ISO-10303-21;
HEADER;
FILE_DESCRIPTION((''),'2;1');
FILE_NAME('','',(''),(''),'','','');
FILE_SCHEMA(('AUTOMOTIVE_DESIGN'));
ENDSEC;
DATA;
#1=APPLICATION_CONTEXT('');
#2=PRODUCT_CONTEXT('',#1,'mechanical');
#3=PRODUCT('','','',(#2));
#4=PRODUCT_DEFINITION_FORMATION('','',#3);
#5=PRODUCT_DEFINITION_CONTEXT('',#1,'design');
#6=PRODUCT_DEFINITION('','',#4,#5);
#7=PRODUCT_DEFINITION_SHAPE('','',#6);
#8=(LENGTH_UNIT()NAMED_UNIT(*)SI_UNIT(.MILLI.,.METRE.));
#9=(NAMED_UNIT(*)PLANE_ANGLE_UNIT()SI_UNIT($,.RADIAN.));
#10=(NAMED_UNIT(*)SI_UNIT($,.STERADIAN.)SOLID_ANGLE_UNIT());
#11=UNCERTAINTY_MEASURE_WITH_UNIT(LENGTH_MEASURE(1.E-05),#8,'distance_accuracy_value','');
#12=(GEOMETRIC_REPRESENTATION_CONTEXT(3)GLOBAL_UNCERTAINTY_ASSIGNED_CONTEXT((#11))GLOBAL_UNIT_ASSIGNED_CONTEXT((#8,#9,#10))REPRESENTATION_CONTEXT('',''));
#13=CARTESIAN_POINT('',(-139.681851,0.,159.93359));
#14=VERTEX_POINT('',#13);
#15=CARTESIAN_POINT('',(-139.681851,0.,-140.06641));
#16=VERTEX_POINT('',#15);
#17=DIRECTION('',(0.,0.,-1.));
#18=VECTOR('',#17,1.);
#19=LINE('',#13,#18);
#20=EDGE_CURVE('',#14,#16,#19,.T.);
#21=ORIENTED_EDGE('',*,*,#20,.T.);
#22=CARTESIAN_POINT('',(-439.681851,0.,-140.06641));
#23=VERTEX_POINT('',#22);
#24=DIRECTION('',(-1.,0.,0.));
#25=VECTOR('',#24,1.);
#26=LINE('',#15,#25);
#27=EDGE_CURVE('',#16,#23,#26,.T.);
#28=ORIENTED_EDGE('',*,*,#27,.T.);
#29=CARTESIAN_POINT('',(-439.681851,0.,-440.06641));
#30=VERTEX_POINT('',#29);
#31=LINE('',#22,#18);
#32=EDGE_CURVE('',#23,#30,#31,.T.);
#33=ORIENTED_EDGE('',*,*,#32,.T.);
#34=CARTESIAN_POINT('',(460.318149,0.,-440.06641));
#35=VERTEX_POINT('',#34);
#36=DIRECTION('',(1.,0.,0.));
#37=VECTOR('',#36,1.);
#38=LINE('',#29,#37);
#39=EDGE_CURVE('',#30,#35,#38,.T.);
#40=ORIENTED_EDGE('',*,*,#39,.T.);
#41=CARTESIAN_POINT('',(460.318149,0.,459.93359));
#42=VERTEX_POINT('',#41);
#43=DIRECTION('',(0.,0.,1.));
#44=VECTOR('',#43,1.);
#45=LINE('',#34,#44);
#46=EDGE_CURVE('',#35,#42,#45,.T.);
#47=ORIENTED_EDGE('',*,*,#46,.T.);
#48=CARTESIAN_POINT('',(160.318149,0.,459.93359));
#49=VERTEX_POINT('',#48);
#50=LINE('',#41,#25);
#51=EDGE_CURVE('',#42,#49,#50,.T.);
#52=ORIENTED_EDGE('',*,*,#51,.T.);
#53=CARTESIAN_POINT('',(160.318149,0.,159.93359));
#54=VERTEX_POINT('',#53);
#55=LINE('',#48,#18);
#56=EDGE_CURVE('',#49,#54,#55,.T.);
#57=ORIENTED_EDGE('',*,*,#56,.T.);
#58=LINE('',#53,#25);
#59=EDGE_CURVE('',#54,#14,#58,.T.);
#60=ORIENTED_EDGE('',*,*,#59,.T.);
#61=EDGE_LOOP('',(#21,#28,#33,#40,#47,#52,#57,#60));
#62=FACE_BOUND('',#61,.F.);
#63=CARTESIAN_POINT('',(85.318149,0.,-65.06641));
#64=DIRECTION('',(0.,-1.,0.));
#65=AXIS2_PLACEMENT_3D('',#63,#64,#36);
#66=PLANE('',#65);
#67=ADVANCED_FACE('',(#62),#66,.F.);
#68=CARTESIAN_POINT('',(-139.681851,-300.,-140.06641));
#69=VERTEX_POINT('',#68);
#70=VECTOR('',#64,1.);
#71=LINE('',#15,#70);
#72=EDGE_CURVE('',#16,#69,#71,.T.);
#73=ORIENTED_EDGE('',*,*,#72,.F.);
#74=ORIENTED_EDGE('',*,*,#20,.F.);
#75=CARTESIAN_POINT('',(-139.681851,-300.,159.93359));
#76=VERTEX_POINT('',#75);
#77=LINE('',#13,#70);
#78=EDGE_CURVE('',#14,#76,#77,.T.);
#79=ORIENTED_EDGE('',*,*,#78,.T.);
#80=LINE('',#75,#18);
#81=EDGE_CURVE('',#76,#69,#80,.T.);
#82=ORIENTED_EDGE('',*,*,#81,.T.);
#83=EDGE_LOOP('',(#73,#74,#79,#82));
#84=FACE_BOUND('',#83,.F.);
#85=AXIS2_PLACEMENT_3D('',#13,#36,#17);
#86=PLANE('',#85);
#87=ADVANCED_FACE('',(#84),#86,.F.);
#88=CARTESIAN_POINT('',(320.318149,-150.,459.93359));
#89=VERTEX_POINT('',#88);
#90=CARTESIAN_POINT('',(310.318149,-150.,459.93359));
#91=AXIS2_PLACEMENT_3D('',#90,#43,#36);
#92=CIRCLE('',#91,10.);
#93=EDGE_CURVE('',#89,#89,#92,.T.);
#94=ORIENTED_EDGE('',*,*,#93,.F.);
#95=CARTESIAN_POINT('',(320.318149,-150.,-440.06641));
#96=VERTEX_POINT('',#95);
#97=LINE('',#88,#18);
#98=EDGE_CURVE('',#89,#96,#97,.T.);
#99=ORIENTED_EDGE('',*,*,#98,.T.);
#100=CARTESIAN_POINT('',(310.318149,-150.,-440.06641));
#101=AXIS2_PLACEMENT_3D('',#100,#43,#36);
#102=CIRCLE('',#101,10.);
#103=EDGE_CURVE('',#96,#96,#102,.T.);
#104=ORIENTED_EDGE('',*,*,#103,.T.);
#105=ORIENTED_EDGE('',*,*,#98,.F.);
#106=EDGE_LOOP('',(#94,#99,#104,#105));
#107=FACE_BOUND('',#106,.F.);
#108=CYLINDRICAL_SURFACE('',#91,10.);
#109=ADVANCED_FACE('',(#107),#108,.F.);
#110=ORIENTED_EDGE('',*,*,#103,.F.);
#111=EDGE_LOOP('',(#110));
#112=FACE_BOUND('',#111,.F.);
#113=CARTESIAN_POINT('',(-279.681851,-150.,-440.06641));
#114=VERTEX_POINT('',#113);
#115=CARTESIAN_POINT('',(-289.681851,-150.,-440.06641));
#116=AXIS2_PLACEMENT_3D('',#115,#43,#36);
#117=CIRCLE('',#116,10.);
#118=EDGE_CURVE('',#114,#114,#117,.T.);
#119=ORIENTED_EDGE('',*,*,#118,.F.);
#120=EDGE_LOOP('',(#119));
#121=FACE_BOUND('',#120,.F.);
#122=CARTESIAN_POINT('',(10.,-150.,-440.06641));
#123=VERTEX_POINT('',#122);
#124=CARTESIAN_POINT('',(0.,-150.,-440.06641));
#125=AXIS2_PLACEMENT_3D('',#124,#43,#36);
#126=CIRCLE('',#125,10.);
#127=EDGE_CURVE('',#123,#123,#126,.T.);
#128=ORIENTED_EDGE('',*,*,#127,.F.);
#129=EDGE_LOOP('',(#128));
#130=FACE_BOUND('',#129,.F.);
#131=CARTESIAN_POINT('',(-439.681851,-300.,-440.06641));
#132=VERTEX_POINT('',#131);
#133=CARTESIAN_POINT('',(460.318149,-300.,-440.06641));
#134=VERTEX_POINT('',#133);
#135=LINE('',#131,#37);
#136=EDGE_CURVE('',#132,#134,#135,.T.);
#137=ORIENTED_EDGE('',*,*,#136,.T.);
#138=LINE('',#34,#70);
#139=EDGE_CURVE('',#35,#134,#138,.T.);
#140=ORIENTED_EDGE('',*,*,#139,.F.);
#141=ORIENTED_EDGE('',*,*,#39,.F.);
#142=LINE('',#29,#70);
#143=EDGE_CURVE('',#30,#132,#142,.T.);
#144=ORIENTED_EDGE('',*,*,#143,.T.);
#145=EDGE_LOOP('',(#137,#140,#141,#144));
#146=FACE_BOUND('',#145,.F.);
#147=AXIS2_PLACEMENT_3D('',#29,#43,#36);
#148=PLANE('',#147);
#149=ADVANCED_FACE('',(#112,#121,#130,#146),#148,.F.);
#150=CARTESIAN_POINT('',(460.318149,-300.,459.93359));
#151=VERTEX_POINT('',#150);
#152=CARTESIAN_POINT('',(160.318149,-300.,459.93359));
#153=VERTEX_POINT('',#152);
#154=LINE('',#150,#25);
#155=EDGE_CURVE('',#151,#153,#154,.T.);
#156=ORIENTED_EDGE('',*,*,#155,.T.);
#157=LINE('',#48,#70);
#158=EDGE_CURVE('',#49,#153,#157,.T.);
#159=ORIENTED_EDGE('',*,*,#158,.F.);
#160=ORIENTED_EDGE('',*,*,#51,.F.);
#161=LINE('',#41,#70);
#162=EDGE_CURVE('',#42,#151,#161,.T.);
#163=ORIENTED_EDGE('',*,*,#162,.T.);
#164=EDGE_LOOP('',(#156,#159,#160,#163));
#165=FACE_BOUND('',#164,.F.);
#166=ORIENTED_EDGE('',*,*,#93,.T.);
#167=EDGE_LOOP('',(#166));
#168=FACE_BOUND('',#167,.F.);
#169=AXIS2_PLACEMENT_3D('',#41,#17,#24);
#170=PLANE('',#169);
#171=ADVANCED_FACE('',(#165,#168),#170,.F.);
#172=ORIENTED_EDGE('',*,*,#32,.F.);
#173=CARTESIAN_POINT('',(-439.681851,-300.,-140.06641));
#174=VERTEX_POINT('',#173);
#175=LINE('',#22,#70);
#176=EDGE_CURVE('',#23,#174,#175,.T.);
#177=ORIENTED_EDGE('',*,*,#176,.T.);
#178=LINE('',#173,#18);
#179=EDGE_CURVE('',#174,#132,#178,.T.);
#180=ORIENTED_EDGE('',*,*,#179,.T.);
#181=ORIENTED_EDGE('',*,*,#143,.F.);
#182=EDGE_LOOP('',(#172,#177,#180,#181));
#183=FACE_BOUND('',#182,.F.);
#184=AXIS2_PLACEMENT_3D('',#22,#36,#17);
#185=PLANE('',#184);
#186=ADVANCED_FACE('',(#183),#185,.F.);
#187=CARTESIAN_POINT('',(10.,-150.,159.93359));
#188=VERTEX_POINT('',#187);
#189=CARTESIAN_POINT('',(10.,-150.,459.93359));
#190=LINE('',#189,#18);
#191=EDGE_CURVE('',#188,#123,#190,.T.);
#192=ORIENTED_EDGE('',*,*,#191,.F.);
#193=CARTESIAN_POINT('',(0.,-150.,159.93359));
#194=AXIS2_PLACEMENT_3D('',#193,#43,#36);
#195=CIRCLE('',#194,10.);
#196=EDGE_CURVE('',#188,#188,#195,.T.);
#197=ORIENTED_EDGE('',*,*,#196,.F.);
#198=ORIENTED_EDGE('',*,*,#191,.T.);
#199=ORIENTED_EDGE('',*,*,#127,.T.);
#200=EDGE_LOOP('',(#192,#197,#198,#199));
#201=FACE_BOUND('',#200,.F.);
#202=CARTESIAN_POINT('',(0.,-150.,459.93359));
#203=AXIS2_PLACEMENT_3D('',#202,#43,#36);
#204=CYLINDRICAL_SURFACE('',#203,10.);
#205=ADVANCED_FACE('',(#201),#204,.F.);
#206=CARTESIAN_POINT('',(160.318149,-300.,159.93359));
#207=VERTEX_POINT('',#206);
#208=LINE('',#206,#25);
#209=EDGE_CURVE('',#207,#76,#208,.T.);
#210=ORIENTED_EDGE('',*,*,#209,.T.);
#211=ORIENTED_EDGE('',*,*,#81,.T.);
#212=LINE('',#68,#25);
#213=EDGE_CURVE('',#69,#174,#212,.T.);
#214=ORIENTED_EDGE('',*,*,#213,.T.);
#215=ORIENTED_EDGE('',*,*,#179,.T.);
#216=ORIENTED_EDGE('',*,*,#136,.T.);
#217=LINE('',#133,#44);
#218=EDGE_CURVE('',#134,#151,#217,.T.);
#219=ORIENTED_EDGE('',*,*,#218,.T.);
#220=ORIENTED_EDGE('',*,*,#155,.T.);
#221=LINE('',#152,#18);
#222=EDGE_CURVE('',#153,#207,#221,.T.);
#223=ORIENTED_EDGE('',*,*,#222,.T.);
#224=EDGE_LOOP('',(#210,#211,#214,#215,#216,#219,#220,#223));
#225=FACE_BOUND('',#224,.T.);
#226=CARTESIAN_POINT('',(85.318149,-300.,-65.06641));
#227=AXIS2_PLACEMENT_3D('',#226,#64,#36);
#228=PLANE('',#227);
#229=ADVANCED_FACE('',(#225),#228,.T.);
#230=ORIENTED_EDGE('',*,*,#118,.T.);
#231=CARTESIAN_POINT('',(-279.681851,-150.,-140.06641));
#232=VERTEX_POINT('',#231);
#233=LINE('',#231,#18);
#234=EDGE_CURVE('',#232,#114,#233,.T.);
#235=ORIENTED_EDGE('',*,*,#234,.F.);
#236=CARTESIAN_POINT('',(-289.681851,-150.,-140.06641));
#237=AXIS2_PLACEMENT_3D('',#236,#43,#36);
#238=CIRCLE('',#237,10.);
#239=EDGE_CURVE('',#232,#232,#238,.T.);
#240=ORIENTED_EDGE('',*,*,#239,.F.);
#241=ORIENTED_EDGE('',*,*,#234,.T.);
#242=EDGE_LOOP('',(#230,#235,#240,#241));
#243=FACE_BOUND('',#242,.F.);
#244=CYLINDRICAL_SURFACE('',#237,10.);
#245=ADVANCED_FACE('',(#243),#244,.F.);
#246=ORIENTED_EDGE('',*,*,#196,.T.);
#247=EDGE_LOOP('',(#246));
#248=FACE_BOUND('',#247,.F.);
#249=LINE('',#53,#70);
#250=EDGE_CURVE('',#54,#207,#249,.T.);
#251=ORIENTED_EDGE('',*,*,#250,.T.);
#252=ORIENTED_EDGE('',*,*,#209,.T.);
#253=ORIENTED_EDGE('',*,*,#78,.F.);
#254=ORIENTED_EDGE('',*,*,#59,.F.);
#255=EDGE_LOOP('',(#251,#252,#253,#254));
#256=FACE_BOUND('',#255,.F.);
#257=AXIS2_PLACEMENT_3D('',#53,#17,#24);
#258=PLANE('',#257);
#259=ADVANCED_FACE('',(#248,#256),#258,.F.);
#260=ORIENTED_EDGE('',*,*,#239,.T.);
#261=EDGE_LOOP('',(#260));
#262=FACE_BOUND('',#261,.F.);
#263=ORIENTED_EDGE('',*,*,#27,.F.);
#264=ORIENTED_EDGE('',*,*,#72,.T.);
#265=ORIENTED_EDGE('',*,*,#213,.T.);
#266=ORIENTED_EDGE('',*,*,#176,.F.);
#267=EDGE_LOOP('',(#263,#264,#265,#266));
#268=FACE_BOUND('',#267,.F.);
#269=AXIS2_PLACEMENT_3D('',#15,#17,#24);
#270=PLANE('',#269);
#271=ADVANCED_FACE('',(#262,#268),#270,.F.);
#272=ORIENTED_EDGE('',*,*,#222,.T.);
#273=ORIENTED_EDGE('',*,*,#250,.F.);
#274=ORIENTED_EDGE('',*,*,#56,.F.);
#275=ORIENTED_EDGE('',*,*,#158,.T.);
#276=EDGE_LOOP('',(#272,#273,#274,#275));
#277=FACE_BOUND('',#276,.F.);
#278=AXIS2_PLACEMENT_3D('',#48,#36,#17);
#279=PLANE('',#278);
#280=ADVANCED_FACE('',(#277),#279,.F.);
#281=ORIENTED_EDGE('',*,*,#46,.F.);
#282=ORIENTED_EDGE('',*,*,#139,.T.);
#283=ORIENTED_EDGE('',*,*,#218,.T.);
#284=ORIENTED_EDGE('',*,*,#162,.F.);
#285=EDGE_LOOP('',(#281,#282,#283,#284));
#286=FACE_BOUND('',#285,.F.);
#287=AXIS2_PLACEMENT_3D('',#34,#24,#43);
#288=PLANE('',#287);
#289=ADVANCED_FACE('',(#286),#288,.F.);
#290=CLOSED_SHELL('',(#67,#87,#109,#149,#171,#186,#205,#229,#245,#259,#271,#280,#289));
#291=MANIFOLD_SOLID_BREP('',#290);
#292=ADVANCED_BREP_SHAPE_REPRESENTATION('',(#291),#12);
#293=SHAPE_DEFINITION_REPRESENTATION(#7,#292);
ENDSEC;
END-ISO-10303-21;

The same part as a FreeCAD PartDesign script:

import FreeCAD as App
import Part
import Sketcher


def add_polygon(sketch, points):
    """Adds a closed chain of lines whose ends are joined by coincident constraints."""
    first, n = sketch.GeometryCount, len(points)
    for a, b in zip(points, points[1:] + points[:1]):
        sketch.addGeometry(Part.LineSegment(App.Vector(*a, 0), App.Vector(*b, 0)), False)
    for i in range(n):
        sketch.addConstraint(Sketcher.Constraint("Coincident", first + i, 2, first + (i + 1) % n, 1))

doc = App.newDocument("Part")
params = doc.addObject("Spreadsheet::Sheet", "Params")
for row, (alias, value) in enumerate([
    ("sketch1_width", "900 mm"),
    ("pad1_length", "300 mm"),
    ("sketch2_diameter", "20 mm"),
    ("sketch3_diameter", "20 mm"),
], start=1):
    params.set(f"A{row}", alias)
    params.set(f"B{row}", "=" + value)
    params.setAlias(f"B{row}", alias)

body = doc.addObject("PartDesign::Body", "Body")

# Sketch on XZ plane
sketch1 = body.newObject("Sketcher::SketchObject", "Sketch")
sketch1.AttachmentSupport = (doc.getObject("XZ_Plane"), [""])
sketch1.MapMode = "FlatFace"
add_polygon(sketch1, [(-439.681851, -440.06641), (460.318149, -440.06641), (460.318149, 459.93359), (160.318149, 459.93359), (160.318149, 159.93359), (-139.681851, 159.93359), (-139.681851, -140.06641), (-439.681851, -140.06641)])  # lines 0-7
sketch1.addConstraint(Sketcher.Constraint("Horizontal", 0))
sketch1.addConstraint(Sketcher.Constraint("Vertical", 1))
sketch1.addConstraint(Sketcher.Constraint("Horizontal", 2))
sketch1.addConstraint(Sketcher.Constraint("Vertical", 3))
sketch1.addConstraint(Sketcher.Constraint("Horizontal", 4))
sketch1.addConstraint(Sketcher.Constraint("Vertical", 5))
sketch1.addConstraint(Sketcher.Constraint("Horizontal", 6))
sketch1.addConstraint(Sketcher.Constraint("Vertical", 7))
sketch1.addConstraint(Sketcher.Constraint("Equal", 2, 4))
sketch1.addConstraint(Sketcher.Constraint("Equal", 4, 6))
sketch1.addConstraint(Sketcher.Constraint("Equal", 0, 1))
sketch1.addConstraint(Sketcher.Constraint("Equal", 6, 3))
sketch1.addConstraint(Sketcher.Constraint("Equal", 3, 5))
sketch1.addConstraint(Sketcher.Constraint("DistanceX", 0, 1, 0, 2, 900.0))
sketch1.addConstraint(Sketcher.Constraint("DistanceX", -1, 1, 0, 2, 460.318149))
sketch1.addConstraint(Sketcher.Constraint("DistanceY", 0, 2, -1, 1, 440.06641))
sketch1.setExpression("Constraints[21]", "Params.sketch1_width")
pad1 = body.newObject("PartDesign::Pad", "Pad")
pad1.Profile = sketch1
pad1.setExpression("Length", "Params.pad1_length")

# Sketch on XY plane
sketch2 = body.newObject("Sketcher::SketchObject", "Sketch001")
sketch2.AttachmentSupport = (doc.getObject("XY_Plane"), [""])
sketch2.MapMode = "FlatFace"
sketch2.AttachmentOffset = App.Placement(App.Vector(0, 0, 459.93359), App.Rotation())
sketch2.addGeometry(Part.Circle(App.Vector(310.318149, -150, 0), App.Vector(0, 0, 1), 10), False)
sketch2.addGeometry(Part.Circle(App.Vector(0, -150, 0), App.Vector(0, 0, 1), 10), False)
sketch2.addConstraint(Sketcher.Constraint("Equal", 0, 1))
sketch2.addConstraint(Sketcher.Constraint("PointOnObject", 1, 3, -2))
sketch2.addConstraint(Sketcher.Constraint("Horizontal", 0, 3, 1, 3))
sketch2.addConstraint(Sketcher.Constraint("Diameter", 0, 20.0))
sketch2.addConstraint(Sketcher.Constraint("DistanceY", 0, 3, -1, 1, 150.0))
sketch2.addConstraint(Sketcher.Constraint("DistanceX", -1, 1, 0, 3, 310.318149))
sketch2.setExpression("Constraints[3]", "Params.sketch2_diameter")
pocket1 = body.newObject("PartDesign::Pocket", "Pocket")
pocket1.Profile = sketch2
pocket1.Type = "ThroughAll"

# Sketch on XY plane
sketch3 = body.newObject("Sketcher::SketchObject", "Sketch002")
sketch3.AttachmentSupport = (doc.getObject("XY_Plane"), [""])
sketch3.MapMode = "FlatFace"
sketch3.AttachmentOffset = App.Placement(App.Vector(0, 0, -140.06641), App.Rotation())
sketch3.addGeometry(Part.Circle(App.Vector(-289.681851, -150, 0), App.Vector(0, 0, 1), 10), False)
sketch3.addConstraint(Sketcher.Constraint("Diameter", 0, 20.0))
sketch3.addConstraint(Sketcher.Constraint("DistanceY", 0, 3, -1, 1, 150.0))
sketch3.addConstraint(Sketcher.Constraint("DistanceX", 0, 3, -1, 1, 289.681851))
sketch3.setExpression("Constraints[0]", "Params.sketch3_diameter")
pocket2 = body.newObject("PartDesign::Pocket", "Pocket001")
pocket2.Profile = sketch3
pocket2.Type = "ThroughAll"

doc.recompute()
